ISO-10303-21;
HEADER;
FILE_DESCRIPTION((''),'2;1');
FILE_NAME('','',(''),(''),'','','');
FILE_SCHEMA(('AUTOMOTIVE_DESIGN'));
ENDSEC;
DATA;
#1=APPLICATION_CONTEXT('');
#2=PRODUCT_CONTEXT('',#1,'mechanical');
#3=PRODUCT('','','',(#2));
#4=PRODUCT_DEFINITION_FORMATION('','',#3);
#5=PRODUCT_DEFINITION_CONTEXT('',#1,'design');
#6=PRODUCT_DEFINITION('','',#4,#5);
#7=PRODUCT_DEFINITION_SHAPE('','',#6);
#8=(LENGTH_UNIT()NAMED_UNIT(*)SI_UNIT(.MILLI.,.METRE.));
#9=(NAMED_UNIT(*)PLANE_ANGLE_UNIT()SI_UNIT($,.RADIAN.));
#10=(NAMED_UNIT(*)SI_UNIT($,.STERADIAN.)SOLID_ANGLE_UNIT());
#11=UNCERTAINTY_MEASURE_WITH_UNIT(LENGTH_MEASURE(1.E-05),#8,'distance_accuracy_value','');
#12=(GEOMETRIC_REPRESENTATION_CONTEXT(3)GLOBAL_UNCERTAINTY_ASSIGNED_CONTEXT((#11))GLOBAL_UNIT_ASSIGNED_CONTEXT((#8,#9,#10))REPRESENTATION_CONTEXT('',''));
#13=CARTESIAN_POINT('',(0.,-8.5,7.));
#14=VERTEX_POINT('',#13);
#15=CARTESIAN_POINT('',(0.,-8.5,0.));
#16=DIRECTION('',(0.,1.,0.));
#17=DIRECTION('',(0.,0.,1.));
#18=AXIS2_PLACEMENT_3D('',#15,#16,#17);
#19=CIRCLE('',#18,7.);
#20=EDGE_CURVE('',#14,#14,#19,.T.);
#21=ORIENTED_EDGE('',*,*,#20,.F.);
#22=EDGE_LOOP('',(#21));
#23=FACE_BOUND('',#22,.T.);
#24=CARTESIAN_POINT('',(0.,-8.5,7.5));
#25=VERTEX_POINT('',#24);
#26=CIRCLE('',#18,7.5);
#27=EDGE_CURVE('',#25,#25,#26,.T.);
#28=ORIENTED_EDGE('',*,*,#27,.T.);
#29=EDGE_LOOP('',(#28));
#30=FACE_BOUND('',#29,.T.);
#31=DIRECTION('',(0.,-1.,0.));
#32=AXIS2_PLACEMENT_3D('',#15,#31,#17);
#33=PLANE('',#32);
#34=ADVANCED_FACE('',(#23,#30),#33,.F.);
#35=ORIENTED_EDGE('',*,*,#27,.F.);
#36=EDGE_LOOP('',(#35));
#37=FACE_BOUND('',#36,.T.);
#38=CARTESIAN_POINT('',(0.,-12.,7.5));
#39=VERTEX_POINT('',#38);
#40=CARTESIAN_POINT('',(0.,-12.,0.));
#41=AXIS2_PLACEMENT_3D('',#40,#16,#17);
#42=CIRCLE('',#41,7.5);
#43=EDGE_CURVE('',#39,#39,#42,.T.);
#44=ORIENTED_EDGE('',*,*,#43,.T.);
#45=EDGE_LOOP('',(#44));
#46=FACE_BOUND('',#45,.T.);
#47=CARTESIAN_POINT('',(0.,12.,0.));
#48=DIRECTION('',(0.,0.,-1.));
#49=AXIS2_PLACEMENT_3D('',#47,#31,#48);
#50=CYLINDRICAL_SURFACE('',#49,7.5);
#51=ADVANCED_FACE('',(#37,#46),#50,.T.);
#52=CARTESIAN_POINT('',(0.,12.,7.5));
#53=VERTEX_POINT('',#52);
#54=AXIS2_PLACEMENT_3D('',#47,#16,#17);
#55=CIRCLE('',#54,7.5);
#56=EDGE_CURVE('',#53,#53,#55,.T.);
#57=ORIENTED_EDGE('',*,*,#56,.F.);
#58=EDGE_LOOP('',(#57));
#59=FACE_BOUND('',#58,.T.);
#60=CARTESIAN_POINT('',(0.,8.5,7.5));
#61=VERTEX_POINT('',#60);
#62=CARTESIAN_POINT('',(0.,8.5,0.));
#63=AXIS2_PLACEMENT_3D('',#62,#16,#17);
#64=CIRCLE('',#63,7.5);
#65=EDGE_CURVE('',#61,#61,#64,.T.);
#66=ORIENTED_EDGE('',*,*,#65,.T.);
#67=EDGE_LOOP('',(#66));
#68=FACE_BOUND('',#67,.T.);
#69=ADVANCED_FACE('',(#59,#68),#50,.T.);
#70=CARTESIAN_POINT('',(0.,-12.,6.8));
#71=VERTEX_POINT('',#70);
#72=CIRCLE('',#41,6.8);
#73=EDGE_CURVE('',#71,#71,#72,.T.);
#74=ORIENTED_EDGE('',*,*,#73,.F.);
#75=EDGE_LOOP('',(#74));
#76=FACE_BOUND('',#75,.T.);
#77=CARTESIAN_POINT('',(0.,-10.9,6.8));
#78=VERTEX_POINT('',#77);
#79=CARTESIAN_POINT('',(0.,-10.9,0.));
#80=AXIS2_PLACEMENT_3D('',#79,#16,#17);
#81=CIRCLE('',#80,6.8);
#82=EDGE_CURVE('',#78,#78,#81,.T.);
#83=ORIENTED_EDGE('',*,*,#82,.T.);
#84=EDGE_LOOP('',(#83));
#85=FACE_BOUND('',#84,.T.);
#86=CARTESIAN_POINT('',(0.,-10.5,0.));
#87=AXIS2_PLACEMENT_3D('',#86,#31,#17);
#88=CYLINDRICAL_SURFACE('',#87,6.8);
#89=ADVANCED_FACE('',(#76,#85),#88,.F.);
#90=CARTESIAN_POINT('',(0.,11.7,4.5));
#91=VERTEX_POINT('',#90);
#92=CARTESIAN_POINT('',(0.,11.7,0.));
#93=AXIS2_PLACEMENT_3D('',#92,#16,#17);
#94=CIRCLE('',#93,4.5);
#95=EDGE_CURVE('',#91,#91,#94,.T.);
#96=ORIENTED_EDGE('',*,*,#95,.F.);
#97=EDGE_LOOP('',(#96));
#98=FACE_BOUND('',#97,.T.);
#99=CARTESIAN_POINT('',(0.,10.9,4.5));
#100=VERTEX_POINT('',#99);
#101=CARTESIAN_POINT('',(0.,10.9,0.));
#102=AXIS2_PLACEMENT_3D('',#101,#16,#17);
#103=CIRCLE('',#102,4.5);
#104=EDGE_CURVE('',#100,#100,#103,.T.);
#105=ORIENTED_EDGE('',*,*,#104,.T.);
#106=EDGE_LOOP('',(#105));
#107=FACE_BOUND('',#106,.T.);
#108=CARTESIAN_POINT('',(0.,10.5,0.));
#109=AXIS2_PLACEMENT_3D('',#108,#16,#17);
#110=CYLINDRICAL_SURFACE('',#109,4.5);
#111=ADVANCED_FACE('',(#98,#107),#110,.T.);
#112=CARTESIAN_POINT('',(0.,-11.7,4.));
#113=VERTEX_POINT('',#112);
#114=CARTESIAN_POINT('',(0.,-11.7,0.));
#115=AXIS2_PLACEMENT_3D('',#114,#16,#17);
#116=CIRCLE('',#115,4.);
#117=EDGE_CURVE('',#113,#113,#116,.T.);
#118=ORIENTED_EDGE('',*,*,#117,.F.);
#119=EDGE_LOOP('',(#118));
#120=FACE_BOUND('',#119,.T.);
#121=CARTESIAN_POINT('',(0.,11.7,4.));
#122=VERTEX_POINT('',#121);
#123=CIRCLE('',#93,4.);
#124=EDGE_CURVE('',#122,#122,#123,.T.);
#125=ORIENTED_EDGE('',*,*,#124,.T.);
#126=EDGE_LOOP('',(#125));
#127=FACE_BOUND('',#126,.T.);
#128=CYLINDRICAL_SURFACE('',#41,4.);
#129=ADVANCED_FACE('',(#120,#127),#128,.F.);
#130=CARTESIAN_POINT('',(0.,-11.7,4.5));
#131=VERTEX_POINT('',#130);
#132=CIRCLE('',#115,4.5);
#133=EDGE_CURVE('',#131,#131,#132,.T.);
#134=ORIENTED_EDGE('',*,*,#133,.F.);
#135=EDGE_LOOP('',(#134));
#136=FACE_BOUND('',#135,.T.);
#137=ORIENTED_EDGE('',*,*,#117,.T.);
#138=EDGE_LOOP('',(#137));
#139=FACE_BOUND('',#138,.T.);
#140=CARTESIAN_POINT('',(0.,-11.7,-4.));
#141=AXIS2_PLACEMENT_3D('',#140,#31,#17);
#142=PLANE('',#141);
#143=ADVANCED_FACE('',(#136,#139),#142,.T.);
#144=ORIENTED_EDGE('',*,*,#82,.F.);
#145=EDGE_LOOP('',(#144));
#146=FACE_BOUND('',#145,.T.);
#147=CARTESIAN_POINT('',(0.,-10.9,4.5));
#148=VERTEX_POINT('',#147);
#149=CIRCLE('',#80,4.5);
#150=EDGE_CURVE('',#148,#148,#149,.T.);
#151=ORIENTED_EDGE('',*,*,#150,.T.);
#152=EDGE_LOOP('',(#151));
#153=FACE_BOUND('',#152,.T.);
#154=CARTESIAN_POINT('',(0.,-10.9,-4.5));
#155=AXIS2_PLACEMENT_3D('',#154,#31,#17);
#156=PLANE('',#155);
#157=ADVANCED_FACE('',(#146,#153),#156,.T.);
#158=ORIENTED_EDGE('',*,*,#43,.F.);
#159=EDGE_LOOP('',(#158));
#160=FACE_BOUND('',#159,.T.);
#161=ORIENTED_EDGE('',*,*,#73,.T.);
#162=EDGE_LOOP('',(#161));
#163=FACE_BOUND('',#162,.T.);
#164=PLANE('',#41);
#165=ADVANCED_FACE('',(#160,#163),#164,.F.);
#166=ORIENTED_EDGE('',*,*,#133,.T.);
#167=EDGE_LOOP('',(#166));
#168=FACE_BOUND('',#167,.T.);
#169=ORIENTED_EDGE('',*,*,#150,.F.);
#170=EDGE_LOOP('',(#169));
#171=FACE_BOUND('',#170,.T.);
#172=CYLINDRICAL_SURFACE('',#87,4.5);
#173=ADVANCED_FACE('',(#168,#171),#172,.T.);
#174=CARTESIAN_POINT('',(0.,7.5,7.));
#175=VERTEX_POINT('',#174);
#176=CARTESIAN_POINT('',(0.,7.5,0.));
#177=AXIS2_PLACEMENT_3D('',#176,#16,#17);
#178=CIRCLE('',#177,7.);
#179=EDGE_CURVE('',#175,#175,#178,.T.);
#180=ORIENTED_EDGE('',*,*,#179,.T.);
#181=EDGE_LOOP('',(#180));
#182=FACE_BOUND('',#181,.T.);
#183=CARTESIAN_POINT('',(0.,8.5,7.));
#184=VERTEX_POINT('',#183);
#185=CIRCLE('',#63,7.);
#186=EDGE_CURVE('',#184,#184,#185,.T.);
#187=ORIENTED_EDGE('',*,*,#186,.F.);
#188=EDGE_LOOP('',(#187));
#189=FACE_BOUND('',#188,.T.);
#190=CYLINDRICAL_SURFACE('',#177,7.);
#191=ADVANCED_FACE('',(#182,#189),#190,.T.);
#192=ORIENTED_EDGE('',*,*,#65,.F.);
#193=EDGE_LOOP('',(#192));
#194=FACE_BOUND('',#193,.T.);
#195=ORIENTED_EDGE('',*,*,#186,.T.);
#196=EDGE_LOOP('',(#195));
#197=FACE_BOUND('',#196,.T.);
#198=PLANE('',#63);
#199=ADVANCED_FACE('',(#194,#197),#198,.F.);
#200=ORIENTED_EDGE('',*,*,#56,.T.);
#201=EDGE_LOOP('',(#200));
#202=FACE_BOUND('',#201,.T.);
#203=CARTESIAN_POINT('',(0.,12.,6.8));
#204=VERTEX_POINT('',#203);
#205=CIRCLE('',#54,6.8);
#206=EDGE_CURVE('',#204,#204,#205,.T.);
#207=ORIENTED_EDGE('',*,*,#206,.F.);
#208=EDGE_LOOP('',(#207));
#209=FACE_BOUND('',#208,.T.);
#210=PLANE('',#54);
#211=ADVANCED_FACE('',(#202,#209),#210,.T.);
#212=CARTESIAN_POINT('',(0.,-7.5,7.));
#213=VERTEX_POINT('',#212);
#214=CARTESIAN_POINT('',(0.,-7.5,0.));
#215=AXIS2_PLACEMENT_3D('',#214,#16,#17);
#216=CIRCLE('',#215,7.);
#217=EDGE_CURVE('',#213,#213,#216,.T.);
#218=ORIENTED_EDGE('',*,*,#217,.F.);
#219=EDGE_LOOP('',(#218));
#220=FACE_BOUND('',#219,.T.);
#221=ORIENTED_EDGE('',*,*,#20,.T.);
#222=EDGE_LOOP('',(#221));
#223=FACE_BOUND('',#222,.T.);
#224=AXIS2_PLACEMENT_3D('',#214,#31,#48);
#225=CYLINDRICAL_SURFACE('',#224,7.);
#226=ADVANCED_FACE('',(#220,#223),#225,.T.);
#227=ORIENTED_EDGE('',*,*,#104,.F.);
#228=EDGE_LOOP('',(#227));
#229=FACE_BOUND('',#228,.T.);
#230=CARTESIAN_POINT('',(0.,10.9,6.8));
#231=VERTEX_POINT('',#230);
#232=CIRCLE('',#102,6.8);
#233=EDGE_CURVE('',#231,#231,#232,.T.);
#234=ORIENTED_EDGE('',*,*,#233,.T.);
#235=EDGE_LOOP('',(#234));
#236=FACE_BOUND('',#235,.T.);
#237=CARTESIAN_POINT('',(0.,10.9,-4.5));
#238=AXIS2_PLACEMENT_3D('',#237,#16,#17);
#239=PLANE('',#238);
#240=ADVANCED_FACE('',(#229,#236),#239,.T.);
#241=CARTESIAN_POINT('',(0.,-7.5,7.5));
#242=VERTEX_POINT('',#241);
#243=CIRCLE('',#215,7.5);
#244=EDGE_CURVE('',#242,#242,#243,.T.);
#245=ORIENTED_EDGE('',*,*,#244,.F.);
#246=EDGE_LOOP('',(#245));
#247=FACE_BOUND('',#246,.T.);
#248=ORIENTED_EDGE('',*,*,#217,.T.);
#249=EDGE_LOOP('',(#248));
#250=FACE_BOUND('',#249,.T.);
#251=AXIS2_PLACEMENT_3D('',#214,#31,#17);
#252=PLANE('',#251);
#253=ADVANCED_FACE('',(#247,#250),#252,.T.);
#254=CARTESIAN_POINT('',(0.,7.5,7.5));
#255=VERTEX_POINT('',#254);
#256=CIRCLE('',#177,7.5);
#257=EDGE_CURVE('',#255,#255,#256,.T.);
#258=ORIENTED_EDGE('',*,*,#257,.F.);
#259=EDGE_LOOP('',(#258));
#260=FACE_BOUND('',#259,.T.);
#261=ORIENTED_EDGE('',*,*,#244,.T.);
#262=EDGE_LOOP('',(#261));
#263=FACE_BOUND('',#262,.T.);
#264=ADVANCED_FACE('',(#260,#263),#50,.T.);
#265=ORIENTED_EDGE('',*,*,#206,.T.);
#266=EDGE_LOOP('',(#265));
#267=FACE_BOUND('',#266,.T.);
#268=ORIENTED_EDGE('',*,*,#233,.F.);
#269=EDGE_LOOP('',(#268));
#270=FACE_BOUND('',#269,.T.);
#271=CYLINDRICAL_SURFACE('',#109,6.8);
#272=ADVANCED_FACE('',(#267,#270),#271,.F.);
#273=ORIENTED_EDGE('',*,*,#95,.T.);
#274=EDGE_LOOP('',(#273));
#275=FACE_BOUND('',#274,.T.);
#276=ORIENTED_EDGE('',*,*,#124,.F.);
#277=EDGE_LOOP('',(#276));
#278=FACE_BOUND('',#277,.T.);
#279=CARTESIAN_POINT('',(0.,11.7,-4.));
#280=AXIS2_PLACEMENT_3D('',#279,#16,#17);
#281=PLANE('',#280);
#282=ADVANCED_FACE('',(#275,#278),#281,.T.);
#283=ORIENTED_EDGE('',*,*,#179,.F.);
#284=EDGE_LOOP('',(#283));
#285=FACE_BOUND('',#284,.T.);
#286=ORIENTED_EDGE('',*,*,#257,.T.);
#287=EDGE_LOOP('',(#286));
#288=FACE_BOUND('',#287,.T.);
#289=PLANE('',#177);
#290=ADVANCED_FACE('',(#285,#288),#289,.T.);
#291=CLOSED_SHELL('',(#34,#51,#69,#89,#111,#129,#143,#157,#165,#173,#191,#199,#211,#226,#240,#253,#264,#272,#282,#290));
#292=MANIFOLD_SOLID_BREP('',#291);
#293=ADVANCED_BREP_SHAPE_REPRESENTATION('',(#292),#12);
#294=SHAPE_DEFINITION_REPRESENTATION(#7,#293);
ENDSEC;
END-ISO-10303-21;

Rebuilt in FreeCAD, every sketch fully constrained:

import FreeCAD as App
import Part
import Sketcher
from FreeCAD import Vector
Q = App.Units.Quantity

doc = App.newDocument("Part")
params = doc.addObject("Spreadsheet::Sheet", "Params")
for row, (alias, value) in enumerate([
    ("sketch1_diameter", "15 mm"),
    ("pad1_length", "24 mm"),
    ("sketch2_diameter", "8 mm"),
    ("pocket1_length", "24 mm"),
    ("sketch3_diameter", "15 mm"),
    ("sketch3_diameter2", "14 mm"),
    ("pocket2_length", "1 mm"),
    ("sketch4_width", "0.3 mm"),
    ("sketch4_width2", "0.8 mm"),
    ("sketch4_height", "0.5 mm"),
    ("sketch4_height2", "2.3 mm"),
    ("groove_angle", "360 deg"),
], start=1):
    params.set(f"A{row}", alias)
    params.set(f"B{row}", "=" + value)
    params.setAlias(f"B{row}", alias)

body = doc.addObject("PartDesign::Body", "Body")

sketch1 = body.newObject("Sketcher::SketchObject", "Sketch")
sketch1.AttachmentSupport = (doc.getObject("XZ_Plane"), [""])
sketch1.MapMode = "FlatFace"
sketch1.addGeometry(Part.Circle(Vector(0, 0, 0), Vector(0, 0, 1), 8), False)
sketch1.addConstraint(Sketcher.Constraint("Coincident", 0, 3, -1, 1))
sketch1.addConstraint(Sketcher.Constraint("Diameter", 0, Q("15 mm")))
sketch1.setExpression("Constraints[1]", "Params.sketch1_diameter")
pad1 = body.newObject("PartDesign::Pad", "Pad")
pad1.Profile = sketch1
pad1.setExpression("Length", "Params.pad1_length")
pad1.Midplane = True

sketch2 = body.newObject("Sketcher::SketchObject", "Sketch001")
sketch2.AttachmentSupport = (doc.getObject("XZ_Plane"), [""])
sketch2.MapMode = "FlatFace"
sketch2.AttachmentOffset = App.Placement(Vector(0, 0, -12), App.Rotation())
sketch2.addGeometry(Part.Circle(Vector(0, 0, 0), Vector(0, 0, 1), 4), False)
sketch2.addConstraint(Sketcher.Constraint("Coincident", 0, 3, -1, 1))
sketch2.addConstraint(Sketcher.Constraint("Diameter", 0, Q("8 mm")))
sketch2.setExpression("Constraints[1]", "Params.sketch2_diameter")
pocket1 = body.newObject("PartDesign::Pocket", "Pocket")
pocket1.Profile = sketch2
pocket1.setExpression("Length", "Params.pocket1_length")
pocket1.Reversed = True

sketch3 = body.newObject("Sketcher::SketchObject", "Sketch002")
sketch3.AttachmentSupport = (doc.getObject("XZ_Plane"), [""])
sketch3.MapMode = "FlatFace"
sketch3.AttachmentOffset = App.Placement(Vector(0, 0, -8.5), App.Rotation())
sketch3.addGeometry(Part.Circle(Vector(0, 0, 0), Vector(0, 0, 1), 8), False)
sketch3.addGeometry(Part.Circle(Vector(0, 0, 0), Vector(0, 0, 1), 7), False)
sketch3.addConstraint(Sketcher.Constraint("Coincident", 0, 3, -1, 1))
sketch3.addConstraint(Sketcher.Constraint("Coincident", 1, 3, -1, 1))
sketch3.addConstraint(Sketcher.Constraint("Diameter", 0, Q("15 mm")))
sketch3.addConstraint(Sketcher.Constraint("Diameter", 1, Q("14 mm")))
sketch3.setExpression("Constraints[2]", "Params.sketch3_diameter")
sketch3.setExpression("Constraints[3]", "Params.sketch3_diameter2")
pocket2 = body.newObject("PartDesign::Pocket", "Pocket001")
pocket2.Profile = sketch3
pocket2.setExpression("Length", "Params.pocket2_length")
pocket2.Reversed = True

sketch4 = body.newObject("Sketcher::SketchObject", "Sketch003")
sketch4.AttachmentSupport = (doc.getObject("YZ_Plane"), [""])
sketch4.MapMode = "FlatFace"
sketch4.addGeometry(Part.LineSegment(Vector(12, -4, 0), Vector(11.7, -4, 0)), False)
sketch4.addGeometry(Part.LineSegment(Vector(11.7, -4, 0), Vector(11.7, -4.5, 0)), False)
sketch4.addGeometry(Part.LineSegment(Vector(11.7, -4.5, 0), Vector(10.9, -4.5, 0)), False)
sketch4.addGeometry(Part.LineSegment(Vector(10.9, -4.5, 0), Vector(10.9, -6.8, 0)), False)
sketch4.addGeometry(Part.LineSegment(Vector(10.9, -6.8, 0), Vector(12, -6.8, 0)), False)
sketch4.addGeometry(Part.LineSegment(Vector(12, -6.8, 0), Vector(12, -4, 0)), False)
sketch4.addConstraint(Sketcher.Constraint("Coincident", 0, 2, 1, 1))
sketch4.addConstraint(Sketcher.Constraint("Coincident", 1, 2, 2, 1))
sketch4.addConstraint(Sketcher.Constraint("Coincident", 2, 2, 3, 1))
sketch4.addConstraint(Sketcher.Constraint("Coincident", 3, 2, 4, 1))
sketch4.addConstraint(Sketcher.Constraint("Coincident", 4, 2, 5, 1))
sketch4.addConstraint(Sketcher.Constraint("Coincident", 5, 2, 0, 1))
sketch4.addConstraint(Sketcher.Constraint("Horizontal", 0))
sketch4.addConstraint(Sketcher.Constraint("Vertical", 1))
sketch4.addConstraint(Sketcher.Constraint("Horizontal", 2))
sketch4.addConstraint(Sketcher.Constraint("Vertical", 3))
sketch4.addConstraint(Sketcher.Constraint("Horizontal", 4))
sketch4.addConstraint(Sketcher.Constraint("Vertical", 5))
sketch4.addConstraint(Sketcher.Constraint("DistanceX", 0, 2, 0, 1, Q("0.3 mm")))
sketch4.addConstraint(Sketcher.Constraint("DistanceX", 2, 2, 2, 1, Q("0.8 mm")))
sketch4.addConstraint(Sketcher.Constraint("DistanceY", 1, 2, 1, 1, Q("0.5 mm")))
sketch4.addConstraint(Sketcher.Constraint("DistanceY", 3, 2, 3, 1, Q("2.3 mm")))
sketch4.addConstraint(Sketcher.Constraint("DistanceY", 0, 2, -1, 1, Q("4 mm")))
sketch4.addConstraint(Sketcher.Constraint("DistanceX", -1, 1, 4, 2, Q("12 mm")))
sketch4.setExpression("Constraints[12]", "Params.sketch4_width")
sketch4.setExpression("Constraints[13]", "Params.sketch4_width2")
sketch4.setExpression("Constraints[14]", "Params.sketch4_height")
sketch4.setExpression("Constraints[15]", "Params.sketch4_height2")
groove = body.newObject("PartDesign::Groove", "Groove")
groove.Profile = sketch4
groove.ReferenceAxis = (sketch4, ["H_Axis"])
groove.setExpression("Angle", "Params.groove_angle")
doc.recompute()

mirrored = body.newObject("PartDesign::Mirrored", "Mirrored")
mirrored.Originals = [pocket2, groove]
mirrored.MirrorPlane = (doc.getObject("XZ_Plane"), [""])
body.Tip = mirrored

doc.recompute()
